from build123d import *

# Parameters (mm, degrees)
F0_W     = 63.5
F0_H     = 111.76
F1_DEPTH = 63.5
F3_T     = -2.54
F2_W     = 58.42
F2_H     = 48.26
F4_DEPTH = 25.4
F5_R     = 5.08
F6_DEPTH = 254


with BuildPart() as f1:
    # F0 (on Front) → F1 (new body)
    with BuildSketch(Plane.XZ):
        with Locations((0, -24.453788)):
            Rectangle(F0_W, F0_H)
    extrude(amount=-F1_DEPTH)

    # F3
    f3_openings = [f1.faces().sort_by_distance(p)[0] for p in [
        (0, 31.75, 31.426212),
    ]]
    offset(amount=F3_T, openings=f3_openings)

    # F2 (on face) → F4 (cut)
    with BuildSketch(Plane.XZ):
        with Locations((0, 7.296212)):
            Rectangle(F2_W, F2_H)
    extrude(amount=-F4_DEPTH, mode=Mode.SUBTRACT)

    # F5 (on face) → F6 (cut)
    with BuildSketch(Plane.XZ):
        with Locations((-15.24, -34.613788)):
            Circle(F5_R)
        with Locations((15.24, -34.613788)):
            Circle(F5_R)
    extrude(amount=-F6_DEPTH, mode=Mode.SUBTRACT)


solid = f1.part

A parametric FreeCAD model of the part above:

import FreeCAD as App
import Part
import Sketcher
Q = App.Units.Quantity


def faces_at(feature, points):
    """Names of the faces that lie closest to the given points."""
    faces = feature.Shape.Faces
    near = lambda p: min(range(len(faces)), key=lambda i: faces[i].distToShape(Part.Vertex(*p))[0])
    return sorted({f"Face{near(p) + 1}" for p in points})


def add_polygon(sketch, points):
    """Adds a closed chain of lines whose ends are joined by coincident constraints."""
    first, n = sketch.GeometryCount, len(points)
    for a, b in zip(points, points[1:] + points[:1]):
        sketch.addGeometry(Part.LineSegment(App.Vector(*a, 0), App.Vector(*b, 0)), False)
    for i in range(n):
        sketch.addConstraint(Sketcher.Constraint("Coincident", first + i, 2, first + (i + 1) % n, 1))

doc = App.newDocument("Part")
body = doc.addObject("PartDesign::Body", "Body")

# Sketch on XZ plane
sketch1 = body.newObject("Sketcher::SketchObject", "Sketch")
sketch1.AttachmentSupport = (doc.getObject("XZ_Plane"), [""])
sketch1.MapMode = "FlatFace"
add_polygon(sketch1, [(-32, 31), (-32, -80), (32, -80), (32, 31)])  # lines 0-3
sketch1.addConstraint([
    Sketcher.Constraint("Vertical", 0),
    Sketcher.Constraint("Horizontal", 1),
    Sketcher.Constraint("Vertical", 2),
    Sketcher.Constraint("Horizontal", 3),
    Sketcher.Constraint("DistanceX", 1, 1, 1, 2, Q("2.5 in")),
    Sketcher.Constraint("DistanceY", 0, 2, 0, 1, Q("4.4 in")),
    Sketcher.Constraint("DistanceX", 0, 2, -1, 1, Q("1.25 in")),
    Sketcher.Constraint("DistanceY", 0, 2, -1, 1, Q("80.333788 mm")),
])
pad1 = body.newObject("PartDesign::Pad", "Pad")
pad1.Profile = sketch1
pad1.Length = Q("2.5 in")
pad1.Reversed = True
doc.recompute()

thickness = body.newObject("PartDesign::Thickness", "Thickness")
thickness.Base = (pad1, faces_at(pad1, [(0, 31.75, 31.426)]))
thickness.Value = Q("0.1 in")
thickness.Reversed = True
thickness.Join = "Arc"

# Sketch on XZ plane
sketch2 = body.newObject("Sketcher::SketchObject", "Sketch001")
sketch2.AttachmentSupport = (doc.getObject("XZ_Plane"), [""])
sketch2.MapMode = "FlatFace"
add_polygon(sketch2, [(-29, 31), (-29, -17), (29, -17), (29, 31)])  # lines 0-3
sketch2.addConstraint([
    Sketcher.Constraint("Vertical", 0),
    Sketcher.Constraint("Horizontal", 1),
    Sketcher.Constraint("Vertical", 2),
    Sketcher.Constraint("Horizontal", 3),
    Sketcher.Constraint("DistanceX", 1, 1, 1, 2, Q("2.3 in")),
    Sketcher.Constraint("DistanceY", 0, 2, 0, 1, Q("1.9 in")),
    Sketcher.Constraint("DistanceX", 0, 2, -1, 1, Q("1.15 in")),
    Sketcher.Constraint("DistanceY", -1, 1, 2, 2, Q("31.426212 mm")),
])
pocket1 = body.newObject("PartDesign::Pocket", "Pocket")
pocket1.Profile = sketch2
pocket1.Length = Q("1 in")

# Sketch on XZ plane
sketch3 = body.newObject("Sketcher::SketchObject", "Sketch002")
sketch3.AttachmentSupport = (doc.getObject("XZ_Plane"), [""])
sketch3.MapMode = "FlatFace"
sketch3.addGeometry([
    Part.Circle(App.Vector(-15, -35, 0), App.Vector(0, 0, 1), 5),
    Part.Circle(App.Vector(15, -35, 0), App.Vector(0, 0, 1), 5),
], False)
sketch3.addConstraint([
    Sketcher.Constraint("Equal", 0, 1),
    Sketcher.Constraint("Symmetric", 0, 3, 1, 3, -2),
    Sketcher.Constraint("Diameter", 0, Q("0.4 in")),
    Sketcher.Constraint("DistanceX", 0, 3, -1, 1, Q("0.6 in")),
    Sketcher.Constraint("DistanceY", 0, 3, -1, 1, Q("34.613788 mm")),
])
pocket2 = body.newObject("PartDesign::Pocket", "Pocket001")
pocket2.Profile = sketch3
pocket2.Length = Q("10 in")

doc.recompute()
